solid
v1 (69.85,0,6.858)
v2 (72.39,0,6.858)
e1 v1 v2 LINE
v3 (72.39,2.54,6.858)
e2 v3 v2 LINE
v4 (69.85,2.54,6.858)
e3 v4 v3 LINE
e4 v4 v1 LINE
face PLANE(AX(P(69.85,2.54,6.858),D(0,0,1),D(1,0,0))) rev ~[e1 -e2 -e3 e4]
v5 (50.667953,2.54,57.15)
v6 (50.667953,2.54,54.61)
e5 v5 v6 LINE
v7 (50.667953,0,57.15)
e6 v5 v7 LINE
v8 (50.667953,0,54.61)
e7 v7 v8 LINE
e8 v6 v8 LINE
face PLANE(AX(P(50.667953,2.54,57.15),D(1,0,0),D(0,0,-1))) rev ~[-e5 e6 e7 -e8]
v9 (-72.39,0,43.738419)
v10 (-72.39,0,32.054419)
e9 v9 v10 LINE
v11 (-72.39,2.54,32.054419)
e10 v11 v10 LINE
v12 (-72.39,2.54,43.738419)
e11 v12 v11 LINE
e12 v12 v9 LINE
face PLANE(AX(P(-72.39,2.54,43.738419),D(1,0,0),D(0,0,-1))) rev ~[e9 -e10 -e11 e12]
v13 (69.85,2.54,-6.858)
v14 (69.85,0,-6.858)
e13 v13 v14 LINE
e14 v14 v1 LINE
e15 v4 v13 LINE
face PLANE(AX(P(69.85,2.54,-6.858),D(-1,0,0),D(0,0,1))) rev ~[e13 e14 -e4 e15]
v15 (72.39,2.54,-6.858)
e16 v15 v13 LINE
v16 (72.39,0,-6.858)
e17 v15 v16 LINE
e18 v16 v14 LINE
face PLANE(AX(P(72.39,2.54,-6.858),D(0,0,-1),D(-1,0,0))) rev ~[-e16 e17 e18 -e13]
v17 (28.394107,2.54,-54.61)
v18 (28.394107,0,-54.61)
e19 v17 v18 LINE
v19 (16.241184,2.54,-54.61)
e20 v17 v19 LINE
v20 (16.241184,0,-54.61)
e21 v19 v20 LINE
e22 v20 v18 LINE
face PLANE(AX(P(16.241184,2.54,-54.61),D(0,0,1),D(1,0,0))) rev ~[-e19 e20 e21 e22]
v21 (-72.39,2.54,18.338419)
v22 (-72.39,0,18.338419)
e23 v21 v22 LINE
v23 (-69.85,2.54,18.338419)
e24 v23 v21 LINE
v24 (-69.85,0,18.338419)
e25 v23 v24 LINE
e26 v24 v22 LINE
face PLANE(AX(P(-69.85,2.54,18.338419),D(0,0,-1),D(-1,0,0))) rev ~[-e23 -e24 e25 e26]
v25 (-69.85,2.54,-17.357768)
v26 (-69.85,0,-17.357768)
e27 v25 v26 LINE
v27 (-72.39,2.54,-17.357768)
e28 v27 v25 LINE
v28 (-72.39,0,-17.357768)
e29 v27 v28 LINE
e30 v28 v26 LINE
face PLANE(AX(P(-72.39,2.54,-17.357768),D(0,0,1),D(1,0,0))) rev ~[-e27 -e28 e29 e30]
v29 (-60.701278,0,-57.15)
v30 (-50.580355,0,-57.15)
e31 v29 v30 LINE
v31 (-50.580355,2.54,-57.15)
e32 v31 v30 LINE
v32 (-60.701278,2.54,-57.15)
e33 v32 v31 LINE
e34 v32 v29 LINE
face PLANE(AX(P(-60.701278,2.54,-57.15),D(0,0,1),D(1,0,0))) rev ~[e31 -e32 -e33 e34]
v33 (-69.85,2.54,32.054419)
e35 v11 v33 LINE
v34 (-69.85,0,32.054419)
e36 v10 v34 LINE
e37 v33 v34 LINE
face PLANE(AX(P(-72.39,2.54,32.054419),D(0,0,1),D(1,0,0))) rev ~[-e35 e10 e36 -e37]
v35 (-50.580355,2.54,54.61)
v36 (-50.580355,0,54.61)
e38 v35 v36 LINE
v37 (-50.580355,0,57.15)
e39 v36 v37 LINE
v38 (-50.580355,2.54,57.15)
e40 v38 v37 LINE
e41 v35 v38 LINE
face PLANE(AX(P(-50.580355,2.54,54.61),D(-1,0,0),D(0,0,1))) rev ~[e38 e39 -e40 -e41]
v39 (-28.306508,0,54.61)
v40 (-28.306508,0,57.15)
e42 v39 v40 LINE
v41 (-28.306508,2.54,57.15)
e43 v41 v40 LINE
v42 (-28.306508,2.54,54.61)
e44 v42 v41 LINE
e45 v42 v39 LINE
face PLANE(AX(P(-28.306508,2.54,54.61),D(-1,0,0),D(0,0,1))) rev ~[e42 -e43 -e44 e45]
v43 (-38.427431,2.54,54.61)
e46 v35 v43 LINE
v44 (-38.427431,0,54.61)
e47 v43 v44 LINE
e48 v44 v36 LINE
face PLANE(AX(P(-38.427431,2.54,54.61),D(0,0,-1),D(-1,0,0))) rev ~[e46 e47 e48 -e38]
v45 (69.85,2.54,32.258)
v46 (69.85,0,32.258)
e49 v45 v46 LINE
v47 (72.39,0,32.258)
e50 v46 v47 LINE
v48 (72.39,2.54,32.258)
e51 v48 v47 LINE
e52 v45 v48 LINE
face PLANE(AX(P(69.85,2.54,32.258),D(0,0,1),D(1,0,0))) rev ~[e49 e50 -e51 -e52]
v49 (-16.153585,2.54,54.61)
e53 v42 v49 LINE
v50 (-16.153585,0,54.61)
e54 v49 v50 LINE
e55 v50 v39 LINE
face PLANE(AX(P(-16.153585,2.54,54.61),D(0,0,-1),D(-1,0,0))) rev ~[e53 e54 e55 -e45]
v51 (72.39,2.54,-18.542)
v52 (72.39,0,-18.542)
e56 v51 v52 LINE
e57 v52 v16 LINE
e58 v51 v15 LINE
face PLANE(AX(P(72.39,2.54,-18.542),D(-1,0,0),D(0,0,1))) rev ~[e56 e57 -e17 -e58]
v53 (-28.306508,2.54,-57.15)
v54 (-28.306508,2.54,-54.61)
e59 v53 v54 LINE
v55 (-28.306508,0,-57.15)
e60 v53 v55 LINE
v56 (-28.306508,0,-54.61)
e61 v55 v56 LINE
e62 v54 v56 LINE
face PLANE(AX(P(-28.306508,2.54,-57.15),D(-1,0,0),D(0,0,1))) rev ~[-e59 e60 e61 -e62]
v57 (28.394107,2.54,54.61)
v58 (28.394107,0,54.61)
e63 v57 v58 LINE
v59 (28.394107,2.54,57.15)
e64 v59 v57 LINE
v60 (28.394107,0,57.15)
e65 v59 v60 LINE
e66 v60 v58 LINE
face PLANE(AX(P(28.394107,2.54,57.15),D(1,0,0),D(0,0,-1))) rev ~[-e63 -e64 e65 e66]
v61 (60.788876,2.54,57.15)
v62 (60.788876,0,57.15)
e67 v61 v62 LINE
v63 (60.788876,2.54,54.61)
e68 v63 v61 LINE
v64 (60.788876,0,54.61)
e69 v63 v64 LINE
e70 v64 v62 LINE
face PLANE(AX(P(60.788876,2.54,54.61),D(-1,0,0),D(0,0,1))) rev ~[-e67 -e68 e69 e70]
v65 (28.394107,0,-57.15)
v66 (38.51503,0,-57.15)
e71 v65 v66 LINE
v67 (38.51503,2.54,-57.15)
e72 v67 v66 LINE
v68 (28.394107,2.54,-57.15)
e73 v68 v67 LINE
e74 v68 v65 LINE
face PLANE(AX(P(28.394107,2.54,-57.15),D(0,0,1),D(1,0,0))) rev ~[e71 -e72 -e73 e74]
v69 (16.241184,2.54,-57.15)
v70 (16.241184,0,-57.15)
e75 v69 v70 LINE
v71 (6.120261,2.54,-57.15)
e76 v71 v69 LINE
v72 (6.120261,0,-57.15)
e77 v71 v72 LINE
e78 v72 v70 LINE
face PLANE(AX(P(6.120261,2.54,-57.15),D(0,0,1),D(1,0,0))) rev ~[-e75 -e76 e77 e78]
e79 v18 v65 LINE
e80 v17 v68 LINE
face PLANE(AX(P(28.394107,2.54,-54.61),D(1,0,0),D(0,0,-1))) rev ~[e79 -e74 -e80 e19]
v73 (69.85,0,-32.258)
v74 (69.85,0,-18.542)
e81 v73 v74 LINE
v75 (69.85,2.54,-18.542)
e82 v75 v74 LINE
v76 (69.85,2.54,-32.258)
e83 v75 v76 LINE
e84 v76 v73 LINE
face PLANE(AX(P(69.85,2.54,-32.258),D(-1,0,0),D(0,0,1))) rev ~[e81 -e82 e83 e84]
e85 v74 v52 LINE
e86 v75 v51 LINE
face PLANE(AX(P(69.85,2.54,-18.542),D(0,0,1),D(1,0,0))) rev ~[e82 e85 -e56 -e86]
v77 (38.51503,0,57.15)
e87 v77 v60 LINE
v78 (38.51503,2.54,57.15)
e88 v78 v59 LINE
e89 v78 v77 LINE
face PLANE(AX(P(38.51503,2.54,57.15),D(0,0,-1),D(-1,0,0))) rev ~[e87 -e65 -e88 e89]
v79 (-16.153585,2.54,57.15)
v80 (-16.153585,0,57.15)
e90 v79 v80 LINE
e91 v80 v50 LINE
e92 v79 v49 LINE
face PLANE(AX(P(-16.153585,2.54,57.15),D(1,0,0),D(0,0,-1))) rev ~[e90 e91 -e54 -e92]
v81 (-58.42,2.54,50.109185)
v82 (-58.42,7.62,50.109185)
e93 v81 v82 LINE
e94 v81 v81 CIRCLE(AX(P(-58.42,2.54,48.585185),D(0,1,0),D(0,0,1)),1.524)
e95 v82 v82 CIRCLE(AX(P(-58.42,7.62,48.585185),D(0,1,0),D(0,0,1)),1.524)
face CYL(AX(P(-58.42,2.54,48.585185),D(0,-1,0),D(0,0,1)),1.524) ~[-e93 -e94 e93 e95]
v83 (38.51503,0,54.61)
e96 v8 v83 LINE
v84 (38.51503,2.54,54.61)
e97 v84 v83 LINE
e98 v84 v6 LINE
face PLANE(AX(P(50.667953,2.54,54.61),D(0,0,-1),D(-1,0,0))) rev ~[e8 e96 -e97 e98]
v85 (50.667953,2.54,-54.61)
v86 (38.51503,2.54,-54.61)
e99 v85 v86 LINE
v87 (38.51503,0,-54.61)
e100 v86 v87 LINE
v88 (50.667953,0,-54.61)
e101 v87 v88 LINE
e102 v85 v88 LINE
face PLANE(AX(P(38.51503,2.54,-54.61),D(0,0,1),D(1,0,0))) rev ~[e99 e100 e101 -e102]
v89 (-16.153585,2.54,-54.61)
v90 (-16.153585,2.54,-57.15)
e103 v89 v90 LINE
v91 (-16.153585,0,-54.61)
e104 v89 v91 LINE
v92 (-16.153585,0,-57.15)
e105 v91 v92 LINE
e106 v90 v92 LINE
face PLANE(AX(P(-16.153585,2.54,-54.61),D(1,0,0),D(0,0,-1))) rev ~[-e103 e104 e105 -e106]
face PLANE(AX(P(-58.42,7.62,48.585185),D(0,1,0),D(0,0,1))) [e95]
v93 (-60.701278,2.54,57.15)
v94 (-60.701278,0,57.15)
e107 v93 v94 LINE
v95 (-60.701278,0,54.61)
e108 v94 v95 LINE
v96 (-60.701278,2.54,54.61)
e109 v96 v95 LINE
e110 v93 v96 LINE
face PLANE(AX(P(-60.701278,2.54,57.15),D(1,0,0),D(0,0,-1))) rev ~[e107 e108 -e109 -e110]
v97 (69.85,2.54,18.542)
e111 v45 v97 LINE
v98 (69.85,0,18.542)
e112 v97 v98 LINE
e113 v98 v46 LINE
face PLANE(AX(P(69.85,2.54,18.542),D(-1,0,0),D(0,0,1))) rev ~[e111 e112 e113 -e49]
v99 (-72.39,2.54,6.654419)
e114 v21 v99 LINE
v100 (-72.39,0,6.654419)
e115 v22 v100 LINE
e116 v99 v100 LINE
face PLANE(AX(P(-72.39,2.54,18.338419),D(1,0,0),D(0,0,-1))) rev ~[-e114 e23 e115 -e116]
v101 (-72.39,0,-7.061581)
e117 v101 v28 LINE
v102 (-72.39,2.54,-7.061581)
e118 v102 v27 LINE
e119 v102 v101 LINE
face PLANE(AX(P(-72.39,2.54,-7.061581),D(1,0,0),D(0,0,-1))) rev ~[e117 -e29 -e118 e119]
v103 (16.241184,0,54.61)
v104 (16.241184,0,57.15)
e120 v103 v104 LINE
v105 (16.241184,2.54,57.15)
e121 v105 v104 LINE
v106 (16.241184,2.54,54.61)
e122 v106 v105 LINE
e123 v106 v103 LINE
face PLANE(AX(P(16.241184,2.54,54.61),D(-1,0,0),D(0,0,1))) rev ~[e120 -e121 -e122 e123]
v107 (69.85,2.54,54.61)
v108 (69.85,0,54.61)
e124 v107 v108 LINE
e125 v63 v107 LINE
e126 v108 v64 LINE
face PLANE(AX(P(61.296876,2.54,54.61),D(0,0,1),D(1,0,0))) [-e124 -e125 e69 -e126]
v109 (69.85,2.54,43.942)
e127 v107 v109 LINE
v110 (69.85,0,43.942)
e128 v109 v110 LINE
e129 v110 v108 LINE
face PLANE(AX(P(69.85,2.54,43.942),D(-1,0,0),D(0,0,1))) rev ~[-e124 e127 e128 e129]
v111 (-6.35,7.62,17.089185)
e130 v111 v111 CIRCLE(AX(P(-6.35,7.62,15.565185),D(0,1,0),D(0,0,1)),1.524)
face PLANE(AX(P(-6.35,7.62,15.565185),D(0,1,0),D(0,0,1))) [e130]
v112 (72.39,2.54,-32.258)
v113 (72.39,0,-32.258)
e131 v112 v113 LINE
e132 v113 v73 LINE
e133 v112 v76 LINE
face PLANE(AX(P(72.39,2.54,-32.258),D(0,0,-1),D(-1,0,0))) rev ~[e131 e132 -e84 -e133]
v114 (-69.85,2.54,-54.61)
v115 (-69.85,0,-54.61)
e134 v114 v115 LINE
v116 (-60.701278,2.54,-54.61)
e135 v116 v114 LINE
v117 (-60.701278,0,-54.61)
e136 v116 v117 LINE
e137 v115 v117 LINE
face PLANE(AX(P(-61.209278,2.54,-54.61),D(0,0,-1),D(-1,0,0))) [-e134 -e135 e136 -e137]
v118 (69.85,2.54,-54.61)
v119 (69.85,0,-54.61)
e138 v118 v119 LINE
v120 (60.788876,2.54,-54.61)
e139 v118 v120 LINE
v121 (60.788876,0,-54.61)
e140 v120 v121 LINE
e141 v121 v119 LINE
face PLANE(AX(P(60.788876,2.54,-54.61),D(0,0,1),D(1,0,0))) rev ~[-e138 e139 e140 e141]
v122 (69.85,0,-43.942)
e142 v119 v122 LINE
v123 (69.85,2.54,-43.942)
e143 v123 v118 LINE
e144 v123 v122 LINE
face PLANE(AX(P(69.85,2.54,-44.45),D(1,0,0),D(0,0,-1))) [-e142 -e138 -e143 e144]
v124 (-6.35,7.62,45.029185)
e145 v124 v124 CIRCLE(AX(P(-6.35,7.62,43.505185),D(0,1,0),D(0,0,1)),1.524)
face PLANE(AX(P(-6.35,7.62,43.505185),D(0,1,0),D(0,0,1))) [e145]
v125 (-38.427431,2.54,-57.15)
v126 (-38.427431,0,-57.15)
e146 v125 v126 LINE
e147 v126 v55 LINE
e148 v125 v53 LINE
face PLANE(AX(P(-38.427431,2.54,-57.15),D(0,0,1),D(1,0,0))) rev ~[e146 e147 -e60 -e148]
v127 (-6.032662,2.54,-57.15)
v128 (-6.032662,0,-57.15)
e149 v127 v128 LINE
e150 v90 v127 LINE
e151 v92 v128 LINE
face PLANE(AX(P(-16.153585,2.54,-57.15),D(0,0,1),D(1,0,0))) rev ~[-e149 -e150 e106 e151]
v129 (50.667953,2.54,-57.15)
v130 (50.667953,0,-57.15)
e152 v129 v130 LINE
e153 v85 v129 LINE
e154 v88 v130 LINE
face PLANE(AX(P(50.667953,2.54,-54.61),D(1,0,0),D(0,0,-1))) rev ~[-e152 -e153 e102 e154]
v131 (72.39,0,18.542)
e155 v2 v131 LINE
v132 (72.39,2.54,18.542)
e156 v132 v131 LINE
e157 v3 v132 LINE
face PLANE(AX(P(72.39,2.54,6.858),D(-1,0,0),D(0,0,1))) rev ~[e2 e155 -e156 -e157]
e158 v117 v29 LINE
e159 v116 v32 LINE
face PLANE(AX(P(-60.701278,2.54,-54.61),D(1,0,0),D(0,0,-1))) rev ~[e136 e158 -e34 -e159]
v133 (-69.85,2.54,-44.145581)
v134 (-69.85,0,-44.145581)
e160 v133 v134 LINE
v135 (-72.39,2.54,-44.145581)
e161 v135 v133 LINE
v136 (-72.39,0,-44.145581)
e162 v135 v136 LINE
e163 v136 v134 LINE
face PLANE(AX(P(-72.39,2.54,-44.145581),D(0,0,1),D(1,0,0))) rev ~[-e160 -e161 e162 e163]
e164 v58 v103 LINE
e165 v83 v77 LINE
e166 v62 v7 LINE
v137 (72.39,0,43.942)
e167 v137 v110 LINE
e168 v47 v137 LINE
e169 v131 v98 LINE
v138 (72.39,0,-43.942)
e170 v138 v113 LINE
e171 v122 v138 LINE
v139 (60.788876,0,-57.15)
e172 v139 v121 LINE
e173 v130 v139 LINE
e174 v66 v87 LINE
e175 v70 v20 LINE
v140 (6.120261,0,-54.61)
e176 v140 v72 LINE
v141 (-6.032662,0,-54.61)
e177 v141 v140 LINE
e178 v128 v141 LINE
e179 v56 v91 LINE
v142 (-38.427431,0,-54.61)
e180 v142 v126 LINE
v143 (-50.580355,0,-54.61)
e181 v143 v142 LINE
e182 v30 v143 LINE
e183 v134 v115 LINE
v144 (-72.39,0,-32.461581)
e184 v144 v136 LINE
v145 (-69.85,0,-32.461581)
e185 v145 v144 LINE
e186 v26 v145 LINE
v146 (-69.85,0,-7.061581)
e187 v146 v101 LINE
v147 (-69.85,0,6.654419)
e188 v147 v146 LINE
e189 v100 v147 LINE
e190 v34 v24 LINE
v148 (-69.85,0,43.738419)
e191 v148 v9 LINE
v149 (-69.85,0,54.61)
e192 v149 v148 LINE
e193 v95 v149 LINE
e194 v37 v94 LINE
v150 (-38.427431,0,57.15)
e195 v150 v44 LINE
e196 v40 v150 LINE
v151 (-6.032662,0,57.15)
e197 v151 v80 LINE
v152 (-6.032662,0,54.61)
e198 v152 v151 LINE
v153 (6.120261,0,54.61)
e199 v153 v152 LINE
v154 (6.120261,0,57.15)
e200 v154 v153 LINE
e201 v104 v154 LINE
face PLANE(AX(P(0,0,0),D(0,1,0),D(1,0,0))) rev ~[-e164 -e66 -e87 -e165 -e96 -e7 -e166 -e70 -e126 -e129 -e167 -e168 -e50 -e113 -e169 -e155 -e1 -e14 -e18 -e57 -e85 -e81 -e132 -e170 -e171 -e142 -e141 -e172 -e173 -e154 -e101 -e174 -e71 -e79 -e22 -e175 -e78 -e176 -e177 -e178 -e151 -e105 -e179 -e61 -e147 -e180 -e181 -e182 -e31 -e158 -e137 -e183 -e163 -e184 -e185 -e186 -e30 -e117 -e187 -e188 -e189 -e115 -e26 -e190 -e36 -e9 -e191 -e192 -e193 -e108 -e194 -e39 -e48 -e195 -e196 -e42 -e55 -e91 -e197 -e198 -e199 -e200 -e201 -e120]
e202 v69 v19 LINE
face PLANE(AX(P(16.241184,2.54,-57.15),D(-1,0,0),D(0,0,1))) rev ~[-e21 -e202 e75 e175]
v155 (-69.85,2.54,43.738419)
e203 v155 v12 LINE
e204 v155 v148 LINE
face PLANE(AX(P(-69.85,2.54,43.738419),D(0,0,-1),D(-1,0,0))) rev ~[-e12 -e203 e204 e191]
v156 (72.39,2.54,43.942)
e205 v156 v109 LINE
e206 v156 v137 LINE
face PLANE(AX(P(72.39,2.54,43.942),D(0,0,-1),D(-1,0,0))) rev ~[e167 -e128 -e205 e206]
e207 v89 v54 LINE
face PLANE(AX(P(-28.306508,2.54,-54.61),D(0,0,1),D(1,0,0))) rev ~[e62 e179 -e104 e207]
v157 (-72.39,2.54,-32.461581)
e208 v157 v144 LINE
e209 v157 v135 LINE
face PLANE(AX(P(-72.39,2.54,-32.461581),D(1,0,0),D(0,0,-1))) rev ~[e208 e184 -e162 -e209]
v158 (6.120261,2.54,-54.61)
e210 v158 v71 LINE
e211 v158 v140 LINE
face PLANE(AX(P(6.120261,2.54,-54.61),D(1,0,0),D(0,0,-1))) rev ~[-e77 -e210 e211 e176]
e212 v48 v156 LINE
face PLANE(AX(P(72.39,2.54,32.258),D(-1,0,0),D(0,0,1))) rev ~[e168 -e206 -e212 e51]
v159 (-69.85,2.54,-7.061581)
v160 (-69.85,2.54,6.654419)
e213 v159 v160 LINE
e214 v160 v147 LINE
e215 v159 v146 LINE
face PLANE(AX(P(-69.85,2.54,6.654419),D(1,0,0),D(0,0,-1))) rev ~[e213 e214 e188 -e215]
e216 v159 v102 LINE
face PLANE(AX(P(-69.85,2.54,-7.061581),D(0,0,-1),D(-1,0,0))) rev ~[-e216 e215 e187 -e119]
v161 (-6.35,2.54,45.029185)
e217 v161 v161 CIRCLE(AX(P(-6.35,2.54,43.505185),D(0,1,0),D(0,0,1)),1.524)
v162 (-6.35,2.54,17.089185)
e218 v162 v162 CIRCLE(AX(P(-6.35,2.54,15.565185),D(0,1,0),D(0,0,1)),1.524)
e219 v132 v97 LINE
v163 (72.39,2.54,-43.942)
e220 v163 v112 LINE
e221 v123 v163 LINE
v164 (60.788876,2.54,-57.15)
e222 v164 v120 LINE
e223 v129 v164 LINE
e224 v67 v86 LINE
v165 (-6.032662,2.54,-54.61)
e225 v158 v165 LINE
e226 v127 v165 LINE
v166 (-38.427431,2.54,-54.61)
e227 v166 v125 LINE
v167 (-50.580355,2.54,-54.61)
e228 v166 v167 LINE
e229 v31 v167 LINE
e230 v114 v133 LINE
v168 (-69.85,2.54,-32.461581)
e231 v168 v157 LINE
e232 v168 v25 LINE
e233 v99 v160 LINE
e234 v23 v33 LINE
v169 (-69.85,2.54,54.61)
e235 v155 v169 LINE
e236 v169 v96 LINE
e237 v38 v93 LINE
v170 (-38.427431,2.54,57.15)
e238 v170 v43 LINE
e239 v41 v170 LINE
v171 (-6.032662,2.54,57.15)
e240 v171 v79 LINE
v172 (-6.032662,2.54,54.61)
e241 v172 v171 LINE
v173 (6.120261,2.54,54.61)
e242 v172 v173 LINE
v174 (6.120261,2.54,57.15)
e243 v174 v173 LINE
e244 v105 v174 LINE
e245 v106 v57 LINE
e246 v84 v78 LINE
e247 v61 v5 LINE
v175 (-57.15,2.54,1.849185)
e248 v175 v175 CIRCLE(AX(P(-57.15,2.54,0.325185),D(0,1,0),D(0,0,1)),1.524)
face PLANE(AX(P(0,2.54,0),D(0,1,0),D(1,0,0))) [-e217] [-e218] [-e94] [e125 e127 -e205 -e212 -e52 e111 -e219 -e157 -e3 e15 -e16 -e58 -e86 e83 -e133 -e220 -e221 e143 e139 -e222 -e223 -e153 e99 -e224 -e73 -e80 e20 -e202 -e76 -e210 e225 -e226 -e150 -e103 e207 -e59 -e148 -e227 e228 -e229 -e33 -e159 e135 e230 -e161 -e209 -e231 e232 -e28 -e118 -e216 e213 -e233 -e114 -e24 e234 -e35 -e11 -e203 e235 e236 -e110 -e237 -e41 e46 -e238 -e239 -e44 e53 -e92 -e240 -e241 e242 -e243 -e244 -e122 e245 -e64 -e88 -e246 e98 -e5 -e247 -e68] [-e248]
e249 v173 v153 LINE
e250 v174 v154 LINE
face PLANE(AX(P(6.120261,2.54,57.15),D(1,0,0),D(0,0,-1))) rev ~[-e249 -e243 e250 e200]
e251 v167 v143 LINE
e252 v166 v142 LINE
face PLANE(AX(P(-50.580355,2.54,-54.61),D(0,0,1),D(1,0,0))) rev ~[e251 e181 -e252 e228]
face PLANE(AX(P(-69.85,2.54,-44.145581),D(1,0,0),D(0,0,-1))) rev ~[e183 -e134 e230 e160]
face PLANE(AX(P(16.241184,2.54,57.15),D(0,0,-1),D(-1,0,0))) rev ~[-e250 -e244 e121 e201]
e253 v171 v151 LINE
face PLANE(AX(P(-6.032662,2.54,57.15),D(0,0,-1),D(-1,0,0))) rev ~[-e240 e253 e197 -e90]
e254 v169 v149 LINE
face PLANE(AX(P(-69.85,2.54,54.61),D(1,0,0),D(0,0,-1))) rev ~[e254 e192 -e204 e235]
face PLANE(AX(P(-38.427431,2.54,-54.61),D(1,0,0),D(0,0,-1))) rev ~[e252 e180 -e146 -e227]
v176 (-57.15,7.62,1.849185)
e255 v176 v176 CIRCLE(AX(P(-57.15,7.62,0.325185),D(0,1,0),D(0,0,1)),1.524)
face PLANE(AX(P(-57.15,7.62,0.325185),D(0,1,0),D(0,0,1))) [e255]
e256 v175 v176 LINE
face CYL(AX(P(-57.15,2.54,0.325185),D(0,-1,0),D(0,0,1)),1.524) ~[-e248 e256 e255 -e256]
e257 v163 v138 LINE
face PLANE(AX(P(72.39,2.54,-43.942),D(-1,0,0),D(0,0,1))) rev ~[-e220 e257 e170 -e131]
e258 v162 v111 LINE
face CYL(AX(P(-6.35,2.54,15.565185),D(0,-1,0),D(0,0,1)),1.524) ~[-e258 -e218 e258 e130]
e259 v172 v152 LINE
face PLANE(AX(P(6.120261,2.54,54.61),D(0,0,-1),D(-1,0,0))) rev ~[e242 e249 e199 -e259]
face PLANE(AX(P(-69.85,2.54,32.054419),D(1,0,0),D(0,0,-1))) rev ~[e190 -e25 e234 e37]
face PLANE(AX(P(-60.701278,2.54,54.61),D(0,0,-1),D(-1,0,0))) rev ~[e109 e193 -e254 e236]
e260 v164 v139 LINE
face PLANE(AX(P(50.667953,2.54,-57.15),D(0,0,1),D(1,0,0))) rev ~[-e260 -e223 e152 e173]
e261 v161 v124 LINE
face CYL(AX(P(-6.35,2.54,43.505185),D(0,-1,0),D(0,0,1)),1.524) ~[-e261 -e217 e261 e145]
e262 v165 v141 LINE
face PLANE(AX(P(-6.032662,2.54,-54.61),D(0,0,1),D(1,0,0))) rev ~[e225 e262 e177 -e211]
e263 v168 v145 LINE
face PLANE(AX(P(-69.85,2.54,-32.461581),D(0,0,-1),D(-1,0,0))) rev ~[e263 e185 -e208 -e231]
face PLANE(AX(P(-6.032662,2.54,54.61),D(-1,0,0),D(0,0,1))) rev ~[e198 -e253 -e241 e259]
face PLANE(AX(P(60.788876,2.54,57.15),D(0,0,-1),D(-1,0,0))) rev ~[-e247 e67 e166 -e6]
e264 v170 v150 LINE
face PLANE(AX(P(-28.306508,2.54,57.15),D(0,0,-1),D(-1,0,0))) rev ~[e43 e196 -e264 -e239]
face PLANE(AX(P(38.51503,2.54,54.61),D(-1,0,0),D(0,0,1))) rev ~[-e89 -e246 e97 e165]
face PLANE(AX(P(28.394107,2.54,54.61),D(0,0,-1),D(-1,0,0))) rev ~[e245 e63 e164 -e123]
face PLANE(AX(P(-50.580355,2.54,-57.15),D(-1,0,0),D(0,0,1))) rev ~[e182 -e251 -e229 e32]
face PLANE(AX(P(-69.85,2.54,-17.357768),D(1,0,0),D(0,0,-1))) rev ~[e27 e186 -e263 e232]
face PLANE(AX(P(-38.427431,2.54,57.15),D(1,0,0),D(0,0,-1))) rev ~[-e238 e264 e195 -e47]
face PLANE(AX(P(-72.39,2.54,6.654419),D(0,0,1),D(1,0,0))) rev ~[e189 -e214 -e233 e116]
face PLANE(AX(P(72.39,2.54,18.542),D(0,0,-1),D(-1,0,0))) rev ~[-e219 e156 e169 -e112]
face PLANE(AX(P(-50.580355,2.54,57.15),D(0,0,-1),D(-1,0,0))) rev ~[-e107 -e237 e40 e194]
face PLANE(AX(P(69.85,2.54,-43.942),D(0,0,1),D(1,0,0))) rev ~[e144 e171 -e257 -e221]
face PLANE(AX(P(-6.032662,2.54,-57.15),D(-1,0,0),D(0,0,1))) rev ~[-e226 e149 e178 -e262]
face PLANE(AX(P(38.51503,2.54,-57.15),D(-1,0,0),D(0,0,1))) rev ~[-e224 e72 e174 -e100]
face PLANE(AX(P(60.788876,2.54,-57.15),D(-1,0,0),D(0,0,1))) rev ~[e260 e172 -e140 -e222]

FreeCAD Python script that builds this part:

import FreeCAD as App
import Part
import Sketcher
Q = App.Units.Quantity


def add_polygon(sketch, points):
    """Adds a closed chain of lines whose ends are joined by coincident constraints."""
    first, n = sketch.GeometryCount, len(points)
    for a, b in zip(points, points[1:] + points[:1]):
        sketch.addGeometry(Part.LineSegment(App.Vector(*a, 0), App.Vector(*b, 0)), False)
    for i in range(n):
        sketch.addConstraint(Sketcher.Constraint("Coincident", first + i, 2, first + (i + 1) % n, 1))

doc = App.newDocument("Part")
body = doc.addObject("PartDesign::Body", "Body")

sketch1 = body.newObject("Sketcher::SketchObject", "Sketch")
sketch1.AttachmentSupport = (doc.getObject("XZ_Plane"), [""])
sketch1.MapMode = "FlatFace"
add_polygon(sketch1, [(-72, -57), (-72, 57), (72, 57), (72, -57)])
sketch1.addConstraint(Sketcher.Constraint("Vertical", 0))
sketch1.addConstraint(Sketcher.Constraint("Horizontal", 1))
sketch1.addConstraint(Sketcher.Constraint("Vertical", 2))
sketch1.addConstraint(Sketcher.Constraint("Horizontal", 3))
sketch1.addConstraint(Sketcher.Constraint("Symmetric", 0, 2, 2, 2, -1, 1))
sketch1.addConstraint(Sketcher.Constraint("DistanceX", 1, 1, 1, 2, Q("5.7 in")))
sketch1.addConstraint(Sketcher.Constraint("DistanceY", 0, 1, 0, 2, Q("4.5 in")))
pad1 = body.newObject("PartDesign::Pad", "Pad")
pad1.Profile = sketch1
pad1.Length = Q("2.5 in")
pad1.Reversed = True

sketch2 = body.newObject("Sketcher::SketchObject", "Sketch001")
sketch2.AttachmentSupport = (doc.getObject("XZ_Plane"), [""])
sketch2.MapMode = "FlatFace"
sketch2.AttachmentOffset = App.Placement(App.Vector(0, 0, -2.5 * 25.4), App.Rotation())
add_polygon(sketch2, [(-72, -57), (-72, 57), (72, 57), (72, -57)])
sketch2.addConstraint(Sketcher.Constraint("Vertical", 0))
sketch2.addConstraint(Sketcher.Constraint("Horizontal", 1))
sketch2.addConstraint(Sketcher.Constraint("Vertical", 2))
sketch2.addConstraint(Sketcher.Constraint("Horizontal", 3))
sketch2.addConstraint(Sketcher.Constraint("Symmetric", 0, 2, 2, 2, -1, 1))
sketch2.addConstraint(Sketcher.Constraint("DistanceX", 1, 1, 1, 2, Q("5.7 in")))
sketch2.addConstraint(Sketcher.Constraint("DistanceY", 0, 1, 0, 2, Q("4.5 in")))
pocket1 = body.newObject("PartDesign::Pocket", "Pocket")
pocket1.Profile = sketch2
pocket1.Length = Q("2.4 in")
pocket1.Reversed = True

sketch3 = body.newObject("Sketcher::SketchObject", "Sketch002")
sketch3.AttachmentSupport = (doc.getObject("XZ_Plane"), [""])
sketch3.MapMode = "FlatFace"
sketch3.AttachmentOffset = App.Placement(App.Vector(0, 0, -0.1 * 25.4), App.Rotation())
sketch3.addGeometry(Part.Circle(App.Vector(-58.4, 48.6, 0), App.Vector(0, 0, 1), 1.5), False)
sketch3.addGeometry(Part.Circle(App.Vector(-6.3, 43.5, 0), App.Vector(0, 0, 1), 1.5), False)
sketch3.addGeometry(Part.Circle(App.Vector(-6.3, 15.6, 0), App.Vector(0, 0, 1), 1.5), False)
sketch3.addGeometry(Part.Circle(App.Vector(-57.1, 0.3, 0), App.Vector(0, 0, 1), 1.5), False)
sketch3.addConstraint(Sketcher.Constraint("Equal", 0, 1))
sketch3.addConstraint(Sketcher.Constraint("Equal", 1, 2))
sketch3.addConstraint(Sketcher.Constraint("Equal", 2, 3))
sketch3.addConstraint(Sketcher.Constraint("Vertical", 1, 3, 2, 3))
sketch3.addConstraint(Sketcher.Constraint("Diameter", 0, Q("0.12 in")))
sketch3.addConstraint(Sketcher.Constraint("DistanceX", 3, 3, 2, 3, Q("2 in")))
sketch3.addConstraint(Sketcher.Constraint("DistanceX", 0, 3, -1, 1, Q("2.3 in")))
sketch3.addConstraint(Sketcher.Constraint("DistanceY", 1, 3, 0, 3, Q("0.2 in")))
sketch3.addConstraint(Sketcher.Constraint("DistanceY", 2, 3, 1, 3, Q("1.1 in")))
sketch3.addConstraint(Sketcher.Constraint("DistanceY", 3, 3, 0, 3, Q("1.9 in")))
sketch3.addConstraint(Sketcher.Constraint("DistanceX", 1, 3, -1, 1, Q("0.25 in")))
sketch3.addConstraint(Sketcher.Constraint("DistanceY", -1, 1, 0, 3, Q("48.585185 mm")))
pad2 = body.newObject("PartDesign::Pad", "Pad001")
pad2.Profile = sketch3
pad2.Length = Q("0.2 in")
pad2.Reversed = True

sketch4 = body.newObject("Sketcher::SketchObject", "Sketch003")
sketch4.AttachmentSupport = (doc.getObject("XZ_Plane"), [""])
sketch4.MapMode = "FlatFace"
sketch4.AttachmentOffset = App.Placement(App.Vector(0, 0, -0.1 * 25.4), App.Rotation())
add_polygon(sketch4, [(-91.9, -76.6), (-91.9, 76.6), (91.9, 76.6), (91.9, -76.6)])
add_polygon(sketch4, [(61.3, -54.6), (69.8, -54.6), (69.8, -44.5), (72.4, -44.5), (72.4, -31.8), (69.8, -31.8), (69.8, -19.1), (72.4, -19.1), (72.4, -6.3), (69.8, -6.3), (69.8, 6.3), (72.4, 6.3), (72.4, 19.1), (69.8, 19.1), (69.8, 31.8), (72.4, 31.8), (72.4, 44.5), (69.8, 44.5), (69.8, 54.6), (61.3, 54.6), (61.3, 57.1), (50.2, 57.1), (50.2, 54.6), (39, 54.6), (39, 57.1), (27.9, 57.1), (27.9, 54.6), (16.7, 54.6), (16.7, 57.1), (5.6, 57.1), (5.6, 54.6), (-5.5, 54.6), (-5.5, 57.1), (-16.7, 57.1), (-16.7, 54.6), (-27.8, 54.6), (-27.8, 57.1), (-38.9, 57.1), (-38.9, 54.6), (-50.1, 54.6), (-50.1, 57.1), (-61.2, 57.1), (-61.2, 54.6), (-69.8, 54.6), (-69.8, 44.2), (-72.4, 44.2), (-72.4, 31.5), (-69.8, 31.5), (-69.8, 18.8), (-72.4, 18.8), (-72.4, 6.1), (-69.8, 6.1), (-69.8, -6.6), (-72.4, -6.6), (-72.4, -19.3), (-69.8, -19.3), (-69.8, -32), (-72.4, -32), (-72.4, -44.7), (-69.8, -44.7), (-69.8, -54.6), (-61.2, -54.6), (-61.2, -57.1), (-50.1, -57.1), (-50.1, -54.6), (-38.9, -54.6), (-38.9, -57.1), (-27.8, -57.1), (-27.8, -54.6), (-16.7, -54.6), (-16.7, -57.1), (-5.5, -57.1), (-5.5, -54.6), (5.6, -54.6), (5.6, -57.1), (16.7, -57.1), (16.7, -54.6), (27.9, -54.6), (27.9, -57.1), (39, -57.1), (39, -54.6), (50.2, -54.6), (50.2, -57.1), (61.3, -57.1)])
sketch4.addConstraint(Sketcher.Constraint("Vertical", 0))
sketch4.addConstraint(Sketcher.Constraint("Horizontal", 1))
sketch4.addConstraint(Sketcher.Constraint("Vertical", 2))
sketch4.addConstraint(Sketcher.Constraint("Horizontal", 3))
sketch4.addConstraint(Sketcher.Constraint("Horizontal", 4))
sketch4.addConstraint(Sketcher.Constraint("Vertical", 5))
sketch4.addConstraint(Sketcher.Constraint("Horizontal", 6))
sketch4.addConstraint(Sketcher.Constraint("Vertical", 7))
sketch4.addConstraint(Sketcher.Constraint("Horizontal", 8))
sketch4.addConstraint(Sketcher.Constraint("Vertical", 9))
sketch4.addConstraint(Sketcher.Constraint("Horizontal", 10))
sketch4.addConstraint(Sketcher.Constraint("Vertical", 11))
sketch4.addConstraint(Sketcher.Constraint("Horizontal", 12))
sketch4.addConstraint(Sketcher.Constraint("Vertical", 13))
sketch4.addConstraint(Sketcher.Constraint("Horizontal", 14))
sketch4.addConstraint(Sketcher.Constraint("Vertical", 15))
sketch4.addConstraint(Sketcher.Constraint("Horizontal", 16))
sketch4.addConstraint(Sketcher.Constraint("Vertical", 17))
sketch4.addConstraint(Sketcher.Constraint("Horizontal", 18))
sketch4.addConstraint(Sketcher.Constraint("Vertical", 19))
sketch4.addConstraint(Sketcher.Constraint("Horizontal", 20))
sketch4.addConstraint(Sketcher.Constraint("Vertical", 21))
sketch4.addConstraint(Sketcher.Constraint("Horizontal", 22))
sketch4.addConstraint(Sketcher.Constraint("Vertical", 23))
sketch4.addConstraint(Sketcher.Constraint("Horizontal", 24))
sketch4.addConstraint(Sketcher.Constraint("Vertical", 25))
sketch4.addConstraint(Sketcher.Constraint("Horizontal", 26))
sketch4.addConstraint(Sketcher.Constraint("Vertical", 27))
sketch4.addConstraint(Sketcher.Constraint("Horizontal", 28))
sketch4.addConstraint(Sketcher.Constraint("Vertical", 29))
sketch4.addConstraint(Sketcher.Constraint("Horizontal", 30))
sketch4.addConstraint(Sketcher.Constraint("Vertical", 31))
sketch4.addConstraint(Sketcher.Constraint("Horizontal", 32))
sketch4.addConstraint(Sketcher.Constraint("Vertical", 33))
sketch4.addConstraint(Sketcher.Constraint("Horizontal", 34))
sketch4.addConstraint(Sketcher.Constraint("Vertical", 35))
sketch4.addConstraint(Sketcher.Constraint("Horizontal", 36))
sketch4.addConstraint(Sketcher.Constraint("Vertical", 37))
sketch4.addConstraint(Sketcher.Constraint("Horizontal", 38))
sketch4.addConstraint(Sketcher.Constraint("Vertical", 39))
sketch4.addConstraint(Sketcher.Constraint("Horizontal", 40))
sketch4.addConstraint(Sketcher.Constraint("Vertical", 41))
sketch4.addConstraint(Sketcher.Constraint("Horizontal", 42))
sketch4.addConstraint(Sketcher.Constraint("Vertical", 43))
sketch4.addConstraint(Sketcher.Constraint("Horizontal", 44))
sketch4.addConstraint(Sketcher.Constraint("Vertical", 45))
sketch4.addConstraint(Sketcher.Constraint("Horizontal", 46))
sketch4.addConstraint(Sketcher.Constraint("Vertical", 47))
sketch4.addConstraint(Sketcher.Constraint("Horizontal", 48))
sketch4.addConstraint(Sketcher.Constraint("Vertical", 49))
sketch4.addConstraint(Sketcher.Constraint("Horizontal", 50))
sketch4.addConstraint(Sketcher.Constraint("Vertical", 51))
sketch4.addConstraint(Sketcher.Constraint("Horizontal", 52))
sketch4.addConstraint(Sketcher.Constraint("Vertical", 53))
sketch4.addConstraint(Sketcher.Constraint("Horizontal", 54))
sketch4.addConstraint(Sketcher.Constraint("Vertical", 55))
sketch4.addConstraint(Sketcher.Constraint("Horizontal", 56))
sketch4.addConstraint(Sketcher.Constraint("Vertical", 57))
sketch4.addConstraint(Sketcher.Constraint("Horizontal", 58))
sketch4.addConstraint(Sketcher.Constraint("Vertical", 59))
sketch4.addConstraint(Sketcher.Constraint("Horizontal", 60))
sketch4.addConstraint(Sketcher.Constraint("Vertical", 61))
sketch4.addConstraint(Sketcher.Constraint("Horizontal", 62))
sketch4.addConstraint(Sketcher.Constraint("Vertical", 63))
sketch4.addConstraint(Sketcher.Constraint("Horizontal", 64))
sketch4.addConstraint(Sketcher.Constraint("Vertical", 65))
sketch4.addConstraint(Sketcher.Constraint("Horizontal", 66))
sketch4.addConstraint(Sketcher.Constraint("Vertical", 67))
sketch4.addConstraint(Sketcher.Constraint("Horizontal", 68))
sketch4.addConstraint(Sketcher.Constraint("Vertical", 69))
sketch4.addConstraint(Sketcher.Constraint("Horizontal", 70))
sketch4.addConstraint(Sketcher.Constraint("Vertical", 71))
sketch4.addConstraint(Sketcher.Constraint("Horizontal", 72))
sketch4.addConstraint(Sketcher.Constraint("Vertical", 73))
sketch4.addConstraint(Sketcher.Constraint("Horizontal", 74))
sketch4.addConstraint(Sketcher.Constraint("Vertical", 75))
sketch4.addConstraint(Sketcher.Constraint("Horizontal", 76))
sketch4.addConstraint(Sketcher.Constraint("Vertical", 77))
sketch4.addConstraint(Sketcher.Constraint("Horizontal", 78))
sketch4.addConstraint(Sketcher.Constraint("Vertical", 79))
sketch4.addConstraint(Sketcher.Constraint("Horizontal", 80))
sketch4.addConstraint(Sketcher.Constraint("Vertical", 81))
sketch4.addConstraint(Sketcher.Constraint("Horizontal", 82))
sketch4.addConstraint(Sketcher.Constraint("Vertical", 83))
sketch4.addConstraint(Sketcher.Constraint("Horizontal", 84))
sketch4.addConstraint(Sketcher.Constraint("Vertical", 85))
sketch4.addConstraint(Sketcher.Constraint("Horizontal", 86))
sketch4.addConstraint(Sketcher.Constraint("Vertical", 87))
sketch4.addConstraint(Sketcher.Constraint("Symmetric", 0, 2, 2, 2, -1, 1))
sketch4.addConstraint(Sketcher.Constraint("Symmetric", 4, 2, 46, 2, -1, 1))
sketch4.addConstraint(Sketcher.Constraint("Symmetric", 21, 2, 63, 2, -1, 1))
sketch4.addConstraint(Sketcher.Constraint("Symmetric", 21, 2, 46, 2, -2))
sketch4.addConstraint(Sketcher.Constraint("Symmetric", 11, 2, 14, 2, -1))
sketch4.addConstraint(Sketcher.Constraint("Symmetric", 9, 2, 16, 2, -1))
sketch4.addConstraint(Sketcher.Constraint("Symmetric", 7, 2, 18, 2, -1))
sketch4.addConstraint(Sketcher.Constraint("Symmetric", 44, 2, 65, 2, -1))
sketch4.addConstraint(Sketcher.Constraint("Symmetric", 42, 2, 67, 2, -1))
sketch4.addConstraint(Sketcher.Constraint("Symmetric", 40, 2, 69, 2, -1))
sketch4.addConstraint(Sketcher.Constraint("Symmetric", 38, 2, 71, 2, -1))
sketch4.addConstraint(Sketcher.Constraint("Symmetric", 36, 2, 73, 2, -1))
sketch4.addConstraint(Sketcher.Constraint("Symmetric", 34, 2, 75, 2, -1))
sketch4.addConstraint(Sketcher.Constraint("Symmetric", 32, 2, 77, 2, -1))
sketch4.addConstraint(Sketcher.Constraint("Symmetric", 30, 2, 79, 2, -1))
sketch4.addConstraint(Sketcher.Constraint("Symmetric", 28, 2, 81, 2, -1))
sketch4.addConstraint(Sketcher.Constraint("Symmetric", 26, 2, 83, 2, -1))
sketch4.addConstraint(Sketcher.Constraint("Symmetric", 24, 2, 85, 2, -1))
sketch4.addConstraint(Sketcher.Constraint("Horizontal", 22, 2, 25, 2))
sketch4.addConstraint(Sketcher.Constraint("Horizontal", 24, 2, 27, 2))
sketch4.addConstraint(Sketcher.Constraint("Horizontal", 26, 2, 29, 2))
sketch4.addConstraint(Sketcher.Constraint("Horizontal", 28, 2, 31, 2))
sketch4.addConstraint(Sketcher.Constraint("Horizontal", 30, 2, 33, 2))
sketch4.addConstraint(Sketcher.Constraint("Horizontal", 32, 2, 35, 2))
sketch4.addConstraint(Sketcher.Constraint("Horizontal", 34, 2, 37, 2))
sketch4.addConstraint(Sketcher.Constraint("Horizontal", 36, 2, 39, 2))
sketch4.addConstraint(Sketcher.Constraint("Horizontal", 38, 2, 41, 2))
sketch4.addConstraint(Sketcher.Constraint("Horizontal", 40, 2, 43, 2))
sketch4.addConstraint(Sketcher.Constraint("Vertical", 5, 2, 8, 2))
sketch4.addConstraint(Sketcher.Constraint("Vertical", 7, 2, 10, 2))
sketch4.addConstraint(Sketcher.Constraint("Vertical", 9, 2, 12, 2))
sketch4.addConstraint(Sketcher.Constraint("Vertical", 47, 2, 50, 2))
sketch4.addConstraint(Sketcher.Constraint("Vertical", 49, 2, 52, 2))
sketch4.addConstraint(Sketcher.Constraint("Vertical", 51, 2, 54, 2))
sketch4.addConstraint(Sketcher.Constraint("Vertical", 53, 2, 56, 2))
sketch4.addConstraint(Sketcher.Constraint("Vertical", 55, 2, 58, 2))
sketch4.addConstraint(Sketcher.Constraint("Vertical", 57, 2, 60, 2))
sketch4.addConstraint(Sketcher.Constraint("Vertical", 23, 2, 86, 2))
sketch4.addConstraint(Sketcher.Constraint("Equal", 24, 26))
sketch4.addConstraint(Sketcher.Constraint("Equal", 26, 28))
sketch4.addConstraint(Sketcher.Constraint("Equal", 28, 30))
sketch4.addConstraint(Sketcher.Constraint("Equal", 30, 32))
sketch4.addConstraint(Sketcher.Constraint("Equal", 32, 34))
sketch4.addConstraint(Sketcher.Constraint("Equal", 34, 36))
sketch4.addConstraint(Sketcher.Constraint("Equal", 36, 38))
sketch4.addConstraint(Sketcher.Constraint("Equal", 38, 40))
sketch4.addConstraint(Sketcher.Constraint("Equal", 40, 42))
sketch4.addConstraint(Sketcher.Constraint("Equal", 42, 44))
sketch4.addConstraint(Sketcher.Constraint("Equal", 20, 48))
sketch4.addConstraint(Sketcher.Constraint("Equal", 7, 9))
sketch4.addConstraint(Sketcher.Constraint("Equal", 9, 11))
sketch4.addConstraint(Sketcher.Constraint("Equal", 11, 13))
sketch4.addConstraint(Sketcher.Constraint("Equal", 17, 19))
sketch4.addConstraint(Sketcher.Constraint("Equal", 62, 23))
sketch4.addConstraint(Sketcher.Constraint("Equal", 19, 49))
sketch4.addConstraint(Sketcher.Constraint("Equal", 49, 51))
sketch4.addConstraint(Sketcher.Constraint("Equal", 51, 53))
sketch4.addConstraint(Sketcher.Constraint("Equal", 53, 55))
sketch4.addConstraint(Sketcher.Constraint("Equal", 55, 57))
sketch4.addConstraint(Sketcher.Constraint("Equal", 57, 59))
sketch4.addConstraint(Sketcher.Constraint("Equal", 59, 61))
sketch4.addConstraint(Sketcher.Constraint("DistanceX", 6, 1, 6, 2, Q("0.1 in")))
sketch4.addConstraint(Sketcher.Constraint("DistanceY", 5, 1, 5, 2, Q("0.4 in")))
sketch4.addConstraint(Sketcher.Constraint("DistanceY", 7, 1, 7, 2, Q("0.5 in")))
sketch4.addConstraint(Sketcher.Constraint("DistanceX", -1, 1, 4, 2, Q("2.75 in")))
sketch4.addConstraint(Sketcher.Constraint("DistanceX", 1, 1, 1, 2, Q("183.704 mm")))
sketch4.addConstraint(Sketcher.Constraint("DistanceY", 0, 1, 0, 2, Q("153.224 mm")))
sketch4.addConstraint(Sketcher.Constraint("DistanceY", 47, 2, 47, 1, Q("10.363581 mm")))
sketch4.addConstraint(Sketcher.Constraint("DistanceX", 4, 1, 4, 2, Q("8.553124 mm")))
sketch4.addConstraint(Sketcher.Constraint("DistanceX", 24, 2, 24, 1, Q("11.136923 mm")))
pocket2 = body.newObject("PartDesign::Pocket", "Pocket001")
pocket2.Profile = sketch4
pocket2.Length = Q("0.1 in")
pocket2.Reversed = True

sketch5 = body.newObject("Sketcher::SketchObject", "Sketch004")
sketch5.AttachmentSupport = (doc.getObject("XZ_Plane"), [""])
sketch5.MapMode = "FlatFace"
sketch5.AttachmentOffset = App.Placement(App.Vector(0, 0, -0.1 * 25.4), App.Rotation())
add_polygon(sketch5, [(-91.9, -76.6), (-91.9, 76.6), (91.9, 76.6), (91.9, -76.6)])
add_polygon(sketch5, [(-69.8, -44.1), (-69.8, -54.6), (-60.7, -54.6), (-60.7, -57.1), (-50.6, -57.1), (-50.6, -54.6), (-38.4, -54.6), (-38.4, -57.1), (-28.3, -57.1), (-28.3, -54.6), (-16.2, -54.6), (-16.2, -57.1), (-6, -57.1), (-6, -54.6), (6.1, -54.6), (6.1, -57.1), (16.2, -57.1), (16.2, -54.6), (28.4, -54.6), (28.4, -57.1), (38.5, -57.1), (38.5, -54.6), (50.7, -54.6), (50.7, -57.1), (60.8, -57.1), (60.8, -54.6), (69.8, -54.6), (69.8, -43.9), (72.4, -43.9), (72.4, -32.3), (69.8, -32.3), (69.8, -18.5), (72.4, -18.5), (72.4, -6.9), (69.8, -6.9), (69.8, 6.9), (72.4, 6.9), (72.4, 18.5), (69.8, 18.5), (69.8, 32.3), (72.4, 32.3), (72.4, 43.9), (69.8, 43.9), (69.8, 54.6), (60.8, 54.6), (60.8, 57.1), (50.7, 57.1), (50.7, 54.6), (38.5, 54.6), (38.5, 57.1), (28.4, 57.1), (28.4, 54.6), (16.2, 54.6), (16.2, 57.1), (6.1, 57.1), (6.1, 54.6), (-6, 54.6), (-6, 57.1), (-16.2, 57.1), (-16.2, 54.6), (-28.3, 54.6), (-28.3, 57.1), (-38.4, 57.1), (-38.4, 54.6), (-50.6, 54.6), (-50.6, 57.1), (-60.7, 57.1), (-60.7, 54.6), (-69.8, 54.6), (-69.8, 43.7), (-72.4, 43.7), (-72.4, 32.1), (-69.8, 32.1), (-69.8, 18.3), (-72.4, 18.3), (-72.4, 6.7), (-69.8, 6.7), (-69.8, -7.1), (-72.4, -7.1), (-72.4, -17.4), (-69.8, -17.4), (-69.8, -32.5), (-72.4, -32.5), (-72.4, -44.1)])
sketch5.addConstraint(Sketcher.Constraint("Vertical", 0))
sketch5.addConstraint(Sketcher.Constraint("Horizontal", 1))
sketch5.addConstraint(Sketcher.Constraint("Vertical", 2))
sketch5.addConstraint(Sketcher.Constraint("Horizontal", 3))
sketch5.addConstraint(Sketcher.Constraint("Vertical", 4))
sketch5.addConstraint(Sketcher.Constraint("Horizontal", 5))
sketch5.addConstraint(Sketcher.Constraint("Vertical", 6))
sketch5.addConstraint(Sketcher.Constraint("Horizontal", 7))
sketch5.addConstraint(Sketcher.Constraint("Vertical", 8))
sketch5.addConstraint(Sketcher.Constraint("Horizontal", 9))
sketch5.addConstraint(Sketcher.Constraint("Vertical", 10))
sketch5.addConstraint(Sketcher.Constraint("Horizontal", 11))
sketch5.addConstraint(Sketcher.Constraint("Vertical", 12))
sketch5.addConstraint(Sketcher.Constraint("Horizontal", 13))
sketch5.addConstraint(Sketcher.Constraint("Vertical", 14))
sketch5.addConstraint(Sketcher.Constraint("Horizontal", 15))
sketch5.addConstraint(Sketcher.Constraint("Vertical", 16))
sketch5.addConstraint(Sketcher.Constraint("Horizontal", 17))
sketch5.addConstraint(Sketcher.Constraint("Vertical", 18))
sketch5.addConstraint(Sketcher.Constraint("Horizontal", 19))
sketch5.addConstraint(Sketcher.Constraint("Vertical", 20))
sketch5.addConstraint(Sketcher.Constraint("Horizontal", 21))
sketch5.addConstraint(Sketcher.Constraint("Vertical", 22))
sketch5.addConstraint(Sketcher.Constraint("Horizontal", 23))
sketch5.addConstraint(Sketcher.Constraint("Vertical", 24))
sketch5.addConstraint(Sketcher.Constraint("Horizontal", 25))
sketch5.addConstraint(Sketcher.Constraint("Vertical", 26))
sketch5.addConstraint(Sketcher.Constraint("Horizontal", 27))
sketch5.addConstraint(Sketcher.Constraint("Vertical", 28))
sketch5.addConstraint(Sketcher.Constraint("Horizontal", 29))
sketch5.addConstraint(Sketcher.Constraint("Vertical", 30))
sketch5.addConstraint(Sketcher.Constraint("Horizontal", 31))
sketch5.addConstraint(Sketcher.Constraint("Vertical", 32))
sketch5.addConstraint(Sketcher.Constraint("Horizontal", 33))
sketch5.addConstraint(Sketcher.Constraint("Vertical", 34))
sketch5.addConstraint(Sketcher.Constraint("Horizontal", 35))
sketch5.addConstraint(Sketcher.Constraint("Vertical", 36))
sketch5.addConstraint(Sketcher.Constraint("Horizontal", 37))
sketch5.addConstraint(Sketcher.Constraint("Vertical", 38))
sketch5.addConstraint(Sketcher.Constraint("Horizontal", 39))
sketch5.addConstraint(Sketcher.Constraint("Vertical", 40))
sketch5.addConstraint(Sketcher.Constraint("Horizontal", 41))
sketch5.addConstraint(Sketcher.Constraint("Vertical", 42))
sketch5.addConstraint(Sketcher.Constraint("Horizontal", 43))
sketch5.addConstraint(Sketcher.Constraint("Vertical", 44))
sketch5.addConstraint(Sketcher.Constraint("Horizontal", 45))
sketch5.addConstraint(Sketcher.Constraint("Vertical", 46))
sketch5.addConstraint(Sketcher.Constraint("Horizontal", 47))
sketch5.addConstraint(Sketcher.Constraint("Vertical", 48))
sketch5.addConstraint(Sketcher.Constraint("Horizontal", 49))
sketch5.addConstraint(Sketcher.Constraint("Vertical", 50))
sketch5.addConstraint(Sketcher.Constraint("Horizontal", 51))
sketch5.addConstraint(Sketcher.Constraint("Vertical", 52))
sketch5.addConstraint(Sketcher.Constraint("Horizontal", 53))
sketch5.addConstraint(Sketcher.Constraint("Vertical", 54))
sketch5.addConstraint(Sketcher.Constraint("Horizontal", 55))
sketch5.addConstraint(Sketcher.Constraint("Vertical", 56))
sketch5.addConstraint(Sketcher.Constraint("Horizontal", 57))
sketch5.addConstraint(Sketcher.Constraint("Vertical", 58))
sketch5.addConstraint(Sketcher.Constraint("Horizontal", 59))
sketch5.addConstraint(Sketcher.Constraint("Vertical", 60))
sketch5.addConstraint(Sketcher.Constraint("Horizontal", 61))
sketch5.addConstraint(Sketcher.Constraint("Vertical", 62))
sketch5.addConstraint(Sketcher.Constraint("Horizontal", 63))
sketch5.addConstraint(Sketcher.Constraint("Vertical", 64))
sketch5.addConstraint(Sketcher.Constraint("Horizontal", 65))
sketch5.addConstraint(Sketcher.Constraint("Vertical", 66))
sketch5.addConstraint(Sketcher.Constraint("Horizontal", 67))
sketch5.addConstraint(Sketcher.Constraint("Vertical", 68))
sketch5.addConstraint(Sketcher.Constraint("Horizontal", 69))
sketch5.addConstraint(Sketcher.Constraint("Vertical", 70))
sketch5.addConstraint(Sketcher.Constraint("Horizontal", 71))
sketch5.addConstraint(Sketcher.Constraint("Vertical", 72))
sketch5.addConstraint(Sketcher.Constraint("Horizontal", 73))
sketch5.addConstraint(Sketcher.Constraint("Vertical", 74))
sketch5.addConstraint(Sketcher.Constraint("Horizontal", 75))
sketch5.addConstraint(Sketcher.Constraint("Vertical", 76))
sketch5.addConstraint(Sketcher.Constraint("Horizontal", 77))
sketch5.addConstraint(Sketcher.Constraint("Vertical", 78))
sketch5.addConstraint(Sketcher.Constraint("Horizontal", 79))
sketch5.addConstraint(Sketcher.Constraint("Vertical", 80))
sketch5.addConstraint(Sketcher.Constraint("Horizontal", 81))
sketch5.addConstraint(Sketcher.Constraint("Vertical", 82))
sketch5.addConstraint(Sketcher.Constraint("Horizontal", 83))
sketch5.addConstraint(Sketcher.Constraint("Vertical", 84))
sketch5.addConstraint(Sketcher.Constraint("Horizontal", 85))
sketch5.addConstraint(Sketcher.Constraint("Vertical", 86))
sketch5.addConstraint(Sketcher.Constraint("Horizontal", 87))
sketch5.addConstraint(Sketcher.Constraint("Symmetric", 0, 2, 2, 2, -1, 1))
sketch5.addConstraint(Sketcher.Constraint("Symmetric", 4, 2, 46, 2, -1, 1))
sketch5.addConstraint(Sketcher.Constraint("Symmetric", 29, 2, 71, 2, -1, 1))
sketch5.addConstraint(Sketcher.Constraint("Symmetric", 4, 2, 29, 2, -2))
sketch5.addConstraint(Sketcher.Constraint("Symmetric", 36, 2, 39, 2, -1))
sketch5.addConstraint(Sketcher.Constraint("Symmetric", 34, 2, 41, 2, -1))
sketch5.addConstraint(Sketcher.Constraint("Symmetric", 32, 2, 43, 2, -1))
sketch5.addConstraint(Sketcher.Constraint("Symmetric", 27, 2, 48, 2, -1))
sketch5.addConstraint(Sketcher.Constraint("Symmetric", 25, 2, 50, 2, -1))
sketch5.addConstraint(Sketcher.Constraint("Symmetric", 23, 2, 52, 2, -1))
sketch5.addConstraint(Sketcher.Constraint("Symmetric", 21, 2, 54, 2, -1))
sketch5.addConstraint(Sketcher.Constraint("Symmetric", 19, 2, 56, 2, -1))
sketch5.addConstraint(Sketcher.Constraint("Symmetric", 17, 2, 58, 2, -1))
sketch5.addConstraint(Sketcher.Constraint("Symmetric", 15, 2, 60, 2, -1))
sketch5.addConstraint(Sketcher.Constraint("Symmetric", 13, 2, 62, 2, -1))
sketch5.addConstraint(Sketcher.Constraint("Symmetric", 11, 2, 64, 2, -1))
sketch5.addConstraint(Sketcher.Constraint("Symmetric", 9, 2, 66, 2, -1))
sketch5.addConstraint(Sketcher.Constraint("Symmetric", 7, 2, 68, 2, -1))
sketch5.addConstraint(Sketcher.Constraint("Horizontal", 5, 2, 8, 2))
sketch5.addConstraint(Sketcher.Constraint("Horizontal", 7, 2, 10, 2))
sketch5.addConstraint(Sketcher.Constraint("Horizontal", 9, 2, 12, 2))
sketch5.addConstraint(Sketcher.Constraint("Horizontal", 11, 2, 14, 2))
sketch5.addConstraint(Sketcher.Constraint("Horizontal", 13, 2, 16, 2))
sketch5.addConstraint(Sketcher.Constraint("Horizontal", 15, 2, 18, 2))
sketch5.addConstraint(Sketcher.Constraint("Horizontal", 17, 2, 20, 2))
sketch5.addConstraint(Sketcher.Constraint("Horizontal", 19, 2, 22, 2))
sketch5.addConstraint(Sketcher.Constraint("Horizontal", 21, 2, 24, 2))
sketch5.addConstraint(Sketcher.Constraint("Horizontal", 23, 2, 26, 2))
sketch5.addConstraint(Sketcher.Constraint("Vertical", 30, 2, 33, 2))
sketch5.addConstraint(Sketcher.Constraint("Vertical", 32, 2, 35, 2))
sketch5.addConstraint(Sketcher.Constraint("Vertical", 34, 2, 37, 2))
sketch5.addConstraint(Sketcher.Constraint("Vertical", 6, 2, 69, 2))
sketch5.addConstraint(Sketcher.Constraint("Vertical", 72, 2, 75, 2))
sketch5.addConstraint(Sketcher.Constraint("Vertical", 74, 2, 77, 2))
sketch5.addConstraint(Sketcher.Constraint("Vertical", 76, 2, 79, 2))
sketch5.addConstraint(Sketcher.Constraint("Vertical", 78, 2, 81, 2))
sketch5.addConstraint(Sketcher.Constraint("Vertical", 80, 2, 83, 2))
sketch5.addConstraint(Sketcher.Constraint("Vertical", 82, 2, 85, 2))
sketch5.addConstraint(Sketcher.Constraint("Equal", 7, 11))
sketch5.addConstraint(Sketcher.Constraint("Equal", 9, 13))
sketch5.addConstraint(Sketcher.Constraint("Equal", 11, 15))
sketch5.addConstraint(Sketcher.Constraint("Equal", 13, 17))
sketch5.addConstraint(Sketcher.Constraint("Equal", 15, 19))
sketch5.addConstraint(Sketcher.Constraint("Equal", 17, 21))
sketch5.addConstraint(Sketcher.Constraint("Equal", 19, 23))
sketch5.addConstraint(Sketcher.Constraint("Equal", 21, 25))
sketch5.addConstraint(Sketcher.Constraint("Equal", 23, 27))
sketch5.addConstraint(Sketcher.Constraint("Equal", 45, 73))
sketch5.addConstraint(Sketcher.Constraint("Equal", 87, 6))
sketch5.addConstraint(Sketcher.Constraint("Equal", 32, 36))
sketch5.addConstraint(Sketcher.Constraint("Equal", 34, 38))
sketch5.addConstraint(Sketcher.Constraint("Equal", 40, 44))
sketch5.addConstraint(Sketcher.Constraint("Equal", 44, 74))
sketch5.addConstraint(Sketcher.Constraint("Equal", 42, 76))
sketch5.addConstraint(Sketcher.Constraint("Equal", 74, 78))
sketch5.addConstraint(Sketcher.Constraint("Equal", 76, 80))
sketch5.addConstraint(Sketcher.Constraint("Equal", 78, 86))
sketch5.addConstraint(Sketcher.Constraint("DistanceX", 31, 1, 31, 2, Q("0.1 in")))
sketch5.addConstraint(Sketcher.Constraint("DistanceY", 30, 1, 30, 2, Q("0.42 in")))
sketch5.addConstraint(Sketcher.Constraint("DistanceY", 32, 1, 32, 2, Q("0.46 in")))
sketch5.addConstraint(Sketcher.Constraint("DistanceY", 34, 1, 34, 2, Q("0.54 in")))
sketch5.addConstraint(Sketcher.Constraint("DistanceX", 4, 2, -1, 1, Q("2.75 in")))
sketch5.addConstraint(Sketcher.Constraint("DistanceX", 1, 1, 1, 2, Q("183.704 mm")))
sketch5.addConstraint(Sketcher.Constraint("DistanceY", 0, 1, 0, 2, Q("153.224 mm")))
sketch5.addConstraint(Sketcher.Constraint("DistanceY", 4, 2, 4, 1, Q("10.464419 mm")))
sketch5.addConstraint(Sketcher.Constraint("DistanceY", 72, 2, 72, 1, Q("10.871581 mm")))
sketch5.addConstraint(Sketcher.Constraint("DistanceX", 5, 1, 5, 2, Q("9.148722 mm")))
sketch5.addConstraint(Sketcher.Constraint("DistanceX", 7, 1, 7, 2, Q("10.120923 mm")))
sketch5.addConstraint(Sketcher.Constraint("DistanceX", 9, 1, 9, 2, Q("12.152923 mm")))
sketch5.addConstraint(Sketcher.Constraint("DistanceY", 82, 2, 82, 1, Q("10.296187 mm")))
pocket3 = body.newObject("PartDesign::Pocket", "Pocket002")
pocket3.Profile = sketch5
pocket3.Length = Q("0.1 in")
pocket3.Reversed = True

doc.recompute()
